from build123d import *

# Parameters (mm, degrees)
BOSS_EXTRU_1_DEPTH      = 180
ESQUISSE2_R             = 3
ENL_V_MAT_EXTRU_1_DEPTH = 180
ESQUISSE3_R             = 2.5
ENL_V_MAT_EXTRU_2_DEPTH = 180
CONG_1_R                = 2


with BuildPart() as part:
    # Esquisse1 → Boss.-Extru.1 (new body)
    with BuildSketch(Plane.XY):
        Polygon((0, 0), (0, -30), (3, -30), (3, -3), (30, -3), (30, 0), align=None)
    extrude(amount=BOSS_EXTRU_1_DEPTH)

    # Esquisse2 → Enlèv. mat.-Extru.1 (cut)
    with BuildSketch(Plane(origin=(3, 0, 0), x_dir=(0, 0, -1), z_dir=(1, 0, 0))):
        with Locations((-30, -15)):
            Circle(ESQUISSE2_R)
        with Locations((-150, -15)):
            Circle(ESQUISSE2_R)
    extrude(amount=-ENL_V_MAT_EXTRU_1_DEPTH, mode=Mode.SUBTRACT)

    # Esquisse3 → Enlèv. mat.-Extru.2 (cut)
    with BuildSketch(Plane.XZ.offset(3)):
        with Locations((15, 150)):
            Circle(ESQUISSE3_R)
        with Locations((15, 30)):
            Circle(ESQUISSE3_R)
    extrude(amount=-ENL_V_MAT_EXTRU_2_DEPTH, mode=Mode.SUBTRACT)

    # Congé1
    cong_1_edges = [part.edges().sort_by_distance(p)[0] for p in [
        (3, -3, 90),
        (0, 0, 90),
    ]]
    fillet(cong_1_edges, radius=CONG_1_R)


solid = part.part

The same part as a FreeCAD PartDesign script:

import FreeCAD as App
import Part
import Sketcher
Q = App.Units.Quantity


def edges_at(feature, points):
    """Names of the edges that pass closest to the given points."""
    edges = feature.Shape.Edges
    near = lambda p: min(range(len(edges)), key=lambda i: edges[i].distToShape(Part.Vertex(*p))[0])
    return sorted({f"Edge{near(p) + 1}" for p in points})

doc = App.newDocument("Part")
body = doc.addObject("PartDesign::Body", "Body")

sketch1 = body.newObject("Sketcher::SketchObject", "Sketch")
sketch1.AttachmentSupport = (doc.getObject("XY_Plane"), [""])
sketch1.MapMode = "FlatFace"
sketch1.addGeometry([
    Part.LineSegment(App.Vector(0, 0, 0), App.Vector(0, -30, 0)),
    Part.LineSegment(App.Vector(0, -30, 0), App.Vector(3, -30, 0)),
    Part.LineSegment(App.Vector(3, -30, 0), App.Vector(3, -3, 0)),
    Part.LineSegment(App.Vector(3, -3, 0), App.Vector(30, -3, 0)),
    Part.LineSegment(App.Vector(30, -3, 0), App.Vector(30, 0, 0)),
    Part.LineSegment(App.Vector(30, 0, 0), App.Vector(0, 0, 0)),
], False)
sketch1.addConstraint([
    Sketcher.Constraint("Coincident", 0, 2, 1, 1),
    Sketcher.Constraint("Coincident", 1, 2, 2, 1),
    Sketcher.Constraint("Coincident", 2, 2, 3, 1),
    Sketcher.Constraint("Coincident", 3, 2, 4, 1),
    Sketcher.Constraint("Coincident", 4, 2, 5, 1),
    Sketcher.Constraint("Coincident", 5, 2, 0, 1),
    Sketcher.Constraint("Vertical", 0),
    Sketcher.Constraint("Horizontal", 1),
    Sketcher.Constraint("Vertical", 2),
    Sketcher.Constraint("Horizontal", 3),
    Sketcher.Constraint("Vertical", 4),
    Sketcher.Constraint("Horizontal", 5),
    Sketcher.Constraint("Coincident", 5, 2, -1, 1),
    Sketcher.Constraint("Equal", 5, 0),
    Sketcher.Constraint("Equal", 3, 2),
    Sketcher.Constraint("DistanceX", 1, 1, 1, 2, Q("3 mm")),
    Sketcher.Constraint("DistanceX", 3, 1, 3, 2, Q("27 mm")),
])
pad1 = body.newObject("PartDesign::Pad", "Pad")
pad1.Profile = sketch1
pad1.Length = 180

sketch2 = body.newObject("Sketcher::SketchObject", "Sketch001")
sketch2.AttachmentSupport = (doc.getObject("YZ_Plane"), [""])
sketch2.MapMode = "FlatFace"
sketch2.AttachmentOffset = App.Placement(App.Vector(0, 0, 3), App.Rotation())
sketch2.addGeometry([
    Part.Circle(App.Vector(-15, 30, 0), App.Vector(0, 0, 1), 3),
    Part.Circle(App.Vector(-15, 150, 0), App.Vector(0, 0, 1), 3),
], False)
sketch2.addConstraint([
    Sketcher.Constraint("Equal", 0, 1),
    Sketcher.Constraint("Vertical", 0, 3, 1, 3),
    Sketcher.Constraint("Diameter", 0, Q("6 mm")),
    Sketcher.Constraint("DistanceX", 0, 3, -1, 1, Q("15 mm")),
    Sketcher.Constraint("DistanceY", -1, 1, 0, 3, Q("30 mm")),
    Sketcher.Constraint("DistanceY", -1, 1, 1, 3, Q("150 mm")),
])
pocket1 = body.newObject("PartDesign::Pocket", "Pocket")
pocket1.Profile = sketch2
pocket1.Length = 180

sketch3 = body.newObject("Sketcher::SketchObject", "Sketch002")
sketch3.AttachmentSupport = (doc.getObject("XZ_Plane"), [""])
sketch3.MapMode = "FlatFace"
sketch3.AttachmentOffset = App.Placement(App.Vector(0, 0, 3), App.Rotation())
sketch3.addGeometry([
    Part.Circle(App.Vector(15, 150, 0), App.Vector(0, 0, 1), 2.5),
    Part.Circle(App.Vector(15, 30, 0), App.Vector(0, 0, 1), 2.5),
], False)
sketch3.addConstraint([
    Sketcher.Constraint("Equal", 0, 1),
    Sketcher.Constraint("Vertical", 0, 3, 1, 3),
    Sketcher.Constraint("Diameter", 0, Q("5 mm")),
    Sketcher.Constraint("DistanceX", -1, 1, 0, 3, Q("15 mm")),
    Sketcher.Constraint("DistanceY", -1, 1, 0, 3, Q("150 mm")),
    Sketcher.Constraint("DistanceY", -1, 1, 1, 3, Q("30 mm")),
])
pocket2 = body.newObject("PartDesign::Pocket", "Pocket001")
pocket2.Profile = sketch3
pocket2.Length = 180
doc.recompute()

fillet = body.newObject("PartDesign::Fillet", "Fillet")
fillet.Base = (pocket2, edges_at(pocket2, [(3, -3, 90), (0, 0, 90)]))
fillet.Radius = 2

doc.recompute()
